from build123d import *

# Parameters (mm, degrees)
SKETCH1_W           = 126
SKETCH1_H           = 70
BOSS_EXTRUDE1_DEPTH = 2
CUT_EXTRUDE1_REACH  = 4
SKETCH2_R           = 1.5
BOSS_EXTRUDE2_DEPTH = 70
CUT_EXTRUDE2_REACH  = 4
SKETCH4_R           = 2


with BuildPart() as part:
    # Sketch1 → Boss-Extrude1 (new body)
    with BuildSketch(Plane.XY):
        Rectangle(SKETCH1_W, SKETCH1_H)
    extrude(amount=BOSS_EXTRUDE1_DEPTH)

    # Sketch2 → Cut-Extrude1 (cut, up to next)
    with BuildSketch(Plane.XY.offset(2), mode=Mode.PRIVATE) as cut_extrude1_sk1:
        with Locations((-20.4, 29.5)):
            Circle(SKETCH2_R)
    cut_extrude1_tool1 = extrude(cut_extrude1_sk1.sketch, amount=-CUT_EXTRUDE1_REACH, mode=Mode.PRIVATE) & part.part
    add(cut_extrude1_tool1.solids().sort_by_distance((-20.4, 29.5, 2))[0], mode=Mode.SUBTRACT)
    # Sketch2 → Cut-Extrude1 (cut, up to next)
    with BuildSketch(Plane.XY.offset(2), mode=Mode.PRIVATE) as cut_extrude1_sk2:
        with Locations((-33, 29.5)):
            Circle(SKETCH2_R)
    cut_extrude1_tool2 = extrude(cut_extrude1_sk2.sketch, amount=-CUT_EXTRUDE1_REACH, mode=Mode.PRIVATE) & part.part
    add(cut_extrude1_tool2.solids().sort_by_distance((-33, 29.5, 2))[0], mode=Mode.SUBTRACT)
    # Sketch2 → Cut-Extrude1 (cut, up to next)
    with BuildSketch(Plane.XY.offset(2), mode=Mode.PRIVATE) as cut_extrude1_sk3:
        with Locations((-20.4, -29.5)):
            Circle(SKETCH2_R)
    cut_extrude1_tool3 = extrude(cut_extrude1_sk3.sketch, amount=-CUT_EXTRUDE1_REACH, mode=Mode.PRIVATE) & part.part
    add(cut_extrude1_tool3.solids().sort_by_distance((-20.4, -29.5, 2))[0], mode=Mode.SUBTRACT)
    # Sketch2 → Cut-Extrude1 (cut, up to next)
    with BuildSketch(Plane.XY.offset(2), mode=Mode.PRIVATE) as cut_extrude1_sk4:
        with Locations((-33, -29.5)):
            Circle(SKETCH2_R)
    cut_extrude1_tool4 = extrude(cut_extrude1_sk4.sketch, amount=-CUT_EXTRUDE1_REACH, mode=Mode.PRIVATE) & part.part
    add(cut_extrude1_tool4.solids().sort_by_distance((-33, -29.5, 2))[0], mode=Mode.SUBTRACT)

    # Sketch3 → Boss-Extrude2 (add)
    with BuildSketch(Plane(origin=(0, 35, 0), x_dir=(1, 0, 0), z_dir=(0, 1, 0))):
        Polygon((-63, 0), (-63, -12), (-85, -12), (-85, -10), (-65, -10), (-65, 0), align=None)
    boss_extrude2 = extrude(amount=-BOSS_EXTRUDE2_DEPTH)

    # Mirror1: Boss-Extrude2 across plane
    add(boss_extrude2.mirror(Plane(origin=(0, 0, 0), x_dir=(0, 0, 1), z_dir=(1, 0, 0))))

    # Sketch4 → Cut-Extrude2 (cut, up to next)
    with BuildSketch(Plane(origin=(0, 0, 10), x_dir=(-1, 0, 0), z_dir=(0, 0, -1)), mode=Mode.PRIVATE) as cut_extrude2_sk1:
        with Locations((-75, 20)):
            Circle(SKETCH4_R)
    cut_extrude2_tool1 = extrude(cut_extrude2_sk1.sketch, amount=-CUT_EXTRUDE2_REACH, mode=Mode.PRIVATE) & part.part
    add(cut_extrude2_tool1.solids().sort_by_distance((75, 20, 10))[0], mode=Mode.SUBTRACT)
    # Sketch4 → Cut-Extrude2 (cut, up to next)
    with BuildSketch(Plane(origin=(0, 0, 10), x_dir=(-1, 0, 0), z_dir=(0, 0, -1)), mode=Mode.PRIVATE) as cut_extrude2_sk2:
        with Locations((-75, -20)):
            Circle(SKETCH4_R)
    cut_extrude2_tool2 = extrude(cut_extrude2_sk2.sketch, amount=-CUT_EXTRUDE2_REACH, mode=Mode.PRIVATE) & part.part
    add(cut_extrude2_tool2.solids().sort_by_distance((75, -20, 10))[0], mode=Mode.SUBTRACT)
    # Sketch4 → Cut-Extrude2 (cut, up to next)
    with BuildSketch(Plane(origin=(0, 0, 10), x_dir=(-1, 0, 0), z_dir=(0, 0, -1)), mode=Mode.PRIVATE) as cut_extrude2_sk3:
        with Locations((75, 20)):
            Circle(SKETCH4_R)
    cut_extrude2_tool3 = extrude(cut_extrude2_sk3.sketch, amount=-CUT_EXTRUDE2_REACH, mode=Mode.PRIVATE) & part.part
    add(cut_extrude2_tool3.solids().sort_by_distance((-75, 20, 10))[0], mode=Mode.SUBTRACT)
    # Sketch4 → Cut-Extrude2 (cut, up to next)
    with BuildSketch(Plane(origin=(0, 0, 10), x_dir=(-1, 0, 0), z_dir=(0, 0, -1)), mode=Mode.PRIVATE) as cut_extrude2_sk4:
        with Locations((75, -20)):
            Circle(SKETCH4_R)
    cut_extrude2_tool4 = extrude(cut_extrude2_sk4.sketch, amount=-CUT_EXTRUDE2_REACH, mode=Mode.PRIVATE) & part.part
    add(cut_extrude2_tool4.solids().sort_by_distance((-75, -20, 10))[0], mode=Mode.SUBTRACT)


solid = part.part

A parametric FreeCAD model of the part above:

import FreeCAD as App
import Part
import Sketcher

V = App.Vector
Q = App.Units.Quantity


def add_polygon(sketch, points):
    """Adds a closed chain of lines whose ends are joined by coincident constraints."""
    first, n = sketch.GeometryCount, len(points)
    for a, b in zip(points, points[1:] + points[:1]):
        sketch.addGeometry(Part.LineSegment(App.Vector(*a, 0), App.Vector(*b, 0)), False)
    for i in range(n):
        sketch.addConstraint(Sketcher.Constraint("Coincident", first + i, 2, first + (i + 1) % n, 1))

doc = App.newDocument("Part")
body = doc.addObject("PartDesign::Body", "Body")

# Sketch on XY plane
sketch1 = doc.addObject("Sketcher::SketchObject", "Sketch")
body.addObject(sketch1)
sketch1.AttachmentSupport = (doc.XY_Plane, [""])
sketch1.MapMode = "FlatFace"
add_polygon(sketch1, [(-63, 35), (-63, -35), (63, -35), (63, 35)])  # lines 0-3
sketch1.addConstraint([
    Sketcher.Constraint("Vertical", 0),
    Sketcher.Constraint("Horizontal", 1),
    Sketcher.Constraint("Vertical", 2),
    Sketcher.Constraint("Horizontal", 3),
    Sketcher.Constraint("Symmetric", 0, 2, 2, 2, -1, 1),
    Sketcher.Constraint("DistanceX", 1, 1, 1, 2, Q("126 mm")),
    Sketcher.Constraint("DistanceY", 0, 2, 0, 1, Q("70 mm")),
])
pad1 = doc.addObject("PartDesign::Pad", "Pad")
body.addObject(pad1)
pad1.Profile = sketch1
pad1.Length = 2

# Sketch on XY plane
sketch2 = doc.addObject("Sketcher::SketchObject", "Sketch001")
body.addObject(sketch2)
sketch2.AttachmentSupport = (doc.XY_Plane, [""])
sketch2.MapMode = "FlatFace"
sketch2.AttachmentOffset = App.Placement(V(0, 0, 2), App.Rotation())
sketch2.addGeometry(Part.Circle(V(-20.4, 29.5, 0), V(0, 0, 1), 1.5), False)
sketch2.addConstraint([
    Sketcher.Constraint("Diameter", 0, Q("3 mm")),
    Sketcher.Constraint("DistanceX", 0, 3, -1, 1, Q("20.4 mm")),
    Sketcher.Constraint("DistanceY", -1, 1, 0, 3, Q("29.5 mm")),
])
pocket1 = doc.addObject("PartDesign::Pocket", "Pocket")
body.addObject(pocket1)
pocket1.Profile = sketch2
pocket1.Type = "UpToFirst"

# Sketch on XY plane
sketch3 = doc.addObject("Sketcher::SketchObject", "Sketch002")
body.addObject(sketch3)
sketch3.AttachmentSupport = (doc.XY_Plane, [""])
sketch3.MapMode = "FlatFace"
sketch3.AttachmentOffset = App.Placement(V(0, 0, 2), App.Rotation())
sketch3.addGeometry(Part.Circle(V(-33, 29.5, 0), V(0, 0, 1), 1.5), False)
sketch3.addConstraint([
    Sketcher.Constraint("Diameter", 0, Q("3 mm")),
    Sketcher.Constraint("DistanceX", 0, 3, -1, 1, Q("33 mm")),
    Sketcher.Constraint("DistanceY", -1, 1, 0, 3, Q("29.5 mm")),
])
pocket2 = doc.addObject("PartDesign::Pocket", "Pocket001")
body.addObject(pocket2)
pocket2.Profile = sketch3
pocket2.Type = "UpToFirst"

# Sketch on XY plane
sketch4 = doc.addObject("Sketcher::SketchObject", "Sketch003")
body.addObject(sketch4)
sketch4.AttachmentSupport = (doc.XY_Plane, [""])
sketch4.MapMode = "FlatFace"
sketch4.AttachmentOffset = App.Placement(V(0, 0, 2), App.Rotation())
sketch4.addGeometry(Part.Circle(V(-20.4, -29.5, 0), V(0, 0, 1), 1.5), False)
sketch4.addConstraint([
    Sketcher.Constraint("Diameter", 0, Q("3 mm")),
    Sketcher.Constraint("DistanceX", 0, 3, -1, 1, Q("20.4 mm")),
    Sketcher.Constraint("DistanceY", 0, 3, -1, 1, Q("29.5 mm")),
])
pocket3 = doc.addObject("PartDesign::Pocket", "Pocket002")
body.addObject(pocket3)
pocket3.Profile = sketch4
pocket3.Type = "UpToFirst"

# Sketch on XY plane
sketch5 = doc.addObject("Sketcher::SketchObject", "Sketch004")
body.addObject(sketch5)
sketch5.AttachmentSupport = (doc.XY_Plane, [""])
sketch5.MapMode = "FlatFace"
sketch5.AttachmentOffset = App.Placement(V(0, 0, 2), App.Rotation())
sketch5.addGeometry(Part.Circle(V(-33, -29.5, 0), V(0, 0, 1), 1.5), False)
sketch5.addConstraint([
    Sketcher.Constraint("Diameter", 0, Q("3 mm")),
    Sketcher.Constraint("DistanceX", 0, 3, -1, 1, Q("33 mm")),
    Sketcher.Constraint("DistanceY", 0, 3, -1, 1, Q("29.5 mm")),
])
pocket4 = doc.addObject("PartDesign::Pocket", "Pocket003")
body.addObject(pocket4)
pocket4.Profile = sketch5
pocket4.Type = "UpToFirst"

# Sketch on XZ plane
sketch6 = doc.addObject("Sketcher::SketchObject", "Sketch005")
body.addObject(sketch6)
sketch6.AttachmentSupport = (doc.XZ_Plane, [""])
sketch6.MapMode = "FlatFace"
sketch6.AttachmentOffset = App.Placement(V(0, 0, -35), App.Rotation())
add_polygon(sketch6, [(-63, 12), (-63, 0), (-65, 0), (-65, 10), (-85, 10), (-85, 12)])  # lines 0-5
sketch6.addConstraint([
    Sketcher.Constraint("Vertical", 0),
    Sketcher.Constraint("Horizontal", 1),
    Sketcher.Constraint("Vertical", 2),
    Sketcher.Constraint("Horizontal", 3),
    Sketcher.Constraint("Vertical", 4),
    Sketcher.Constraint("Horizontal", 5),
    Sketcher.Constraint("PointOnObject", 0, 2, -1),
    Sketcher.Constraint("Equal", 1, 4),
    Sketcher.Constraint("DistanceX", 1, 2, 1, 1, Q("2 mm")),
    Sketcher.Constraint("DistanceX", 3, 2, 3, 1, Q("20 mm")),
    Sketcher.Constraint("DistanceY", 0, 2, 0, 1, Q("12 mm")),
    Sketcher.Constraint("DistanceX", 0, 2, -1, 1, Q("63 mm")),
])
pad2 = doc.addObject("PartDesign::Pad", "Pad001")
body.addObject(pad2)
pad2.Profile = sketch6
pad2.Length = 70
doc.recompute()

mirrored = doc.addObject("PartDesign::Mirrored", "Mirrored")
body.addObject(mirrored)
mirrored.Originals = [pad2]
mirrored.MirrorPlane = (doc.YZ_Plane, [""])
body.Tip = mirrored

# Sketch on XY plane
sketch7 = doc.addObject("Sketcher::SketchObject", "Sketch006")
body.addObject(sketch7)
sketch7.AttachmentSupport = (doc.XY_Plane, [""])
sketch7.MapMode = "FlatFace"
sketch7.AttachmentOffset = App.Placement(V(0, 0, 10), App.Rotation())
sketch7.addGeometry(Part.Circle(V(75, 20, 0), V(0, 0, 1), 2), False)
sketch7.addConstraint([
    Sketcher.Constraint("Diameter", 0, Q("4 mm")),
    Sketcher.Constraint("DistanceX", -1, 1, 0, 3, Q("75 mm")),
    Sketcher.Constraint("DistanceY", -1, 1, 0, 3, Q("20 mm")),
])
pocket5 = doc.addObject("PartDesign::Pocket", "Pocket004")
body.addObject(pocket5)
pocket5.Profile = sketch7
pocket5.Type = "UpToFirst"
pocket5.Reversed = True

# Sketch on XY plane
sketch8 = doc.addObject("Sketcher::SketchObject", "Sketch007")
body.addObject(sketch8)
sketch8.AttachmentSupport = (doc.XY_Plane, [""])
sketch8.MapMode = "FlatFace"
sketch8.AttachmentOffset = App.Placement(V(0, 0, 10), App.Rotation())
sketch8.addGeometry(Part.Circle(V(75, -20, 0), V(0, 0, 1), 2), False)
sketch8.addConstraint([
    Sketcher.Constraint("Diameter", 0, Q("4 mm")),
    Sketcher.Constraint("DistanceX", -1, 1, 0, 3, Q("75 mm")),
    Sketcher.Constraint("DistanceY", 0, 3, -1, 1, Q("20 mm")),
])
pocket6 = doc.addObject("PartDesign::Pocket", "Pocket005")
body.addObject(pocket6)
pocket6.Profile = sketch8
pocket6.Type = "UpToFirst"
pocket6.Reversed = True

# Sketch on XY plane
sketch9 = doc.addObject("Sketcher::SketchObject", "Sketch008")
body.addObject(sketch9)
sketch9.AttachmentSupport = (doc.XY_Plane, [""])
sketch9.MapMode = "FlatFace"
sketch9.AttachmentOffset = App.Placement(V(0, 0, 10), App.Rotation())
sketch9.addGeometry(Part.Circle(V(-75, 20, 0), V(0, 0, 1), 2), False)
sketch9.addConstraint([
    Sketcher.Constraint("Diameter", 0, Q("4 mm")),
    Sketcher.Constraint("DistanceX", 0, 3, -1, 1, Q("75 mm")),
    Sketcher.Constraint("DistanceY", -1, 1, 0, 3, Q("20 mm")),
])
pocket7 = doc.addObject("PartDesign::Pocket", "Pocket006")
body.addObject(pocket7)
pocket7.Profile = sketch9
pocket7.Type = "UpToFirst"
pocket7.Reversed = True

# Sketch on XY plane
sketch10 = doc.addObject("Sketcher::SketchObject", "Sketch009")
body.addObject(sketch10)
sketch10.AttachmentSupport = (doc.XY_Plane, [""])
sketch10.MapMode = "FlatFace"
sketch10.AttachmentOffset = App.Placement(V(0, 0, 10), App.Rotation())
sketch10.addGeometry(Part.Circle(V(-75, -20, 0), V(0, 0, 1), 2), False)
sketch10.addConstraint([
    Sketcher.Constraint("Diameter", 0, Q("4 mm")),
    Sketcher.Constraint("DistanceX", 0, 3, -1, 1, Q("75 mm")),
    Sketcher.Constraint("DistanceY", 0, 3, -1, 1, Q("20 mm")),
])
pocket8 = doc.addObject("PartDesign::Pocket", "Pocket007")
body.addObject(pocket8)
pocket8.Profile = sketch10
pocket8.Type = "UpToFirst"
pocket8.Reversed = True

doc.recompute()
